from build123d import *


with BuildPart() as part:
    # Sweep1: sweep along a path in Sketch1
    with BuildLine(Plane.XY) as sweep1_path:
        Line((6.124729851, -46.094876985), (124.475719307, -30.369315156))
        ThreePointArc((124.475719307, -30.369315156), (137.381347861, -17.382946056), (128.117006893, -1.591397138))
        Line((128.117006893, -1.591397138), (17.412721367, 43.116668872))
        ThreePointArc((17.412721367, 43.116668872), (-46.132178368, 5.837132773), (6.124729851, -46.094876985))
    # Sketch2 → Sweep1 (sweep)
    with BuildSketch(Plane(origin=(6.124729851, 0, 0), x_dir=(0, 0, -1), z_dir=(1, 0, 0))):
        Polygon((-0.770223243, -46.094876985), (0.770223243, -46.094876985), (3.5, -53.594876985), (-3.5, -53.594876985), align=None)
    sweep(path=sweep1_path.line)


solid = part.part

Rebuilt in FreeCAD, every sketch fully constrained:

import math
import FreeCAD as App
import Part
import Sketcher

V = App.Vector
Q = App.Units.Quantity

doc = App.newDocument("Part")
body = doc.addObject("PartDesign::Body", "Body")

# Sketch on YZ plane
sketch1 = doc.addObject("Sketcher::SketchObject", "Sketch")
body.addObject(sketch1)
sketch1.AttachmentSupport = (doc.YZ_Plane, [""])
sketch1.MapMode = "FlatFace"
sketch1.AttachmentOffset = App.Placement(V(0, 0, 6.12473), App.Rotation())
sketch1.addGeometry(Part.LineSegment(V(-46.1, -0.8, 0), V(-46.1, 0.8, 0)), False)
sketch1.addGeometry(Part.LineSegment(V(-46.1, 0.8, 0), V(-53.6, 3.5, 0)), False)
sketch1.addGeometry(Part.LineSegment(V(-53.6, 3.5, 0), V(-53.6, -3.5, 0)), False)
sketch1.addGeometry(Part.LineSegment(V(-53.6, -3.5, 0), V(-46.1, -0.8, 0)), False)
sketch1.addConstraint(Sketcher.Constraint("Coincident", 0, 2, 1, 1))
sketch1.addConstraint(Sketcher.Constraint("Coincident", 1, 2, 2, 1))
sketch1.addConstraint(Sketcher.Constraint("Coincident", 2, 2, 3, 1))
sketch1.addConstraint(Sketcher.Constraint("Coincident", 3, 2, 0, 1))
sketch1.addConstraint(Sketcher.Constraint("Vertical", 0))
sketch1.addConstraint(Sketcher.Constraint("Vertical", 2))
sketch1.addConstraint(Sketcher.Constraint("Equal", 1, 3))
sketch1.addConstraint(Sketcher.Constraint("DistanceY", 2, 2, 2, 1, Q("7 mm")))
sketch1.addConstraint(Sketcher.Constraint("Angle", 1, Q("160 deg")))
sketch1.addConstraint(Sketcher.Constraint("DistanceY", -1, 1, 1, 2, Q("3.5 mm")))
sketch1.addConstraint(Sketcher.Constraint("DistanceX", 1, 2, 0, 2, Q("7.5 mm")))
sketch1.addConstraint(Sketcher.Constraint("DistanceX", 0, 2, -1, 1, Q("46.094877 mm")))

# Sketch on XY plane
sketch2 = doc.addObject("Sketcher::SketchObject", "Sketch001")
body.addObject(sketch2)
sketch2.AttachmentSupport = (doc.XY_Plane, [""])
sketch2.MapMode = "FlatFace"
sketch2.addGeometry(Part.LineSegment(V(6, -46, 0), V(124, -30, 0)), False)
sketch2.addGeometry(Part.ArcOfCircle(Part.Circle(V(123, -16, 0), V(0, 0, 1), 15), math.radians(-82), math.radians(68)), False)
sketch2.addGeometry(Part.LineSegment(V(128, -2, 0), V(17, 43, 0)), False)
sketch2.addGeometry(Part.ArcOfCircle(Part.Circle(V(0, 0, 0), V(0, 0, 1), 46), math.radians(68), math.radians(278)), False)
sketch2.addConstraint(Sketcher.Constraint("Tangent", 0, 2, 1, 1))
sketch2.addConstraint(Sketcher.Constraint("Tangent", 1, 2, 2, 1))
sketch2.addConstraint(Sketcher.Constraint("Tangent", 2, 2, 3, 1))
sketch2.addConstraint(Sketcher.Constraint("Tangent", 3, 2, 0, 1))
sketch2.addConstraint(Sketcher.Constraint("Coincident", 3, 3, -1, 1))
sketch2.addConstraint(Sketcher.Constraint("Radius", 1, Q("15 mm")))
sketch2.addConstraint(Sketcher.Constraint("Radius", 3, Q("46.5 mm")))
sketch2.addConstraint(Sketcher.Constraint("DistanceX", -1, 1, 1, 3, Q("122.5 mm")))
sketch2.addConstraint(Sketcher.Constraint("DistanceY", 1, 3, -1, 1, Q("15.5 mm")))
doc.recompute()

additivepipe = doc.addObject("PartDesign::AdditivePipe", "AdditivePipe")
body.addObject(additivepipe)
additivepipe.Profile = sketch1
additivepipe.Spine = (sketch2, ["Edge1", "Edge2", "Edge3", "Edge4"])

doc.recompute()
